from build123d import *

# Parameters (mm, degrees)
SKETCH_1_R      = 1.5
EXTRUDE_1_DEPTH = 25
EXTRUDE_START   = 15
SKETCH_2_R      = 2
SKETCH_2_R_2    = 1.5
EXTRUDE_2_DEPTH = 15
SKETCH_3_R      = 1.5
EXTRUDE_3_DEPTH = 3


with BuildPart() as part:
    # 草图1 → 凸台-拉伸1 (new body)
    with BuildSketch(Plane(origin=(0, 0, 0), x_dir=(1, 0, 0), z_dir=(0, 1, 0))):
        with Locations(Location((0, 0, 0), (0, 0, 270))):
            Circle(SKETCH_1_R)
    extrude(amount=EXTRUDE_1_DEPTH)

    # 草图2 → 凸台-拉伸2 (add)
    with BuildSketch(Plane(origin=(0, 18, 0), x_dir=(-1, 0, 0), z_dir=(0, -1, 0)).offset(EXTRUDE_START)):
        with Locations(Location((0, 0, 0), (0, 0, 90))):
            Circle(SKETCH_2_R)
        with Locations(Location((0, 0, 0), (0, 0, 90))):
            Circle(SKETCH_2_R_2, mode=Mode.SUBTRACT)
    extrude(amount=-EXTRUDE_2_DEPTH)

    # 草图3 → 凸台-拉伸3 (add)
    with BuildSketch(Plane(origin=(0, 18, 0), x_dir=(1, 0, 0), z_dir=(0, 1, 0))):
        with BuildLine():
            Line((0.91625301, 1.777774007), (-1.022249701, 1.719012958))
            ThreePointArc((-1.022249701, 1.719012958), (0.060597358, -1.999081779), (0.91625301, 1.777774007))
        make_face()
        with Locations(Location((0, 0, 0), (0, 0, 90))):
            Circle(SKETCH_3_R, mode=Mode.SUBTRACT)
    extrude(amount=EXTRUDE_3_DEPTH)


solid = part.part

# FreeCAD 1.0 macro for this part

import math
import FreeCAD as App
import Part
import Sketcher

doc = App.newDocument("Part")
body = doc.addObject("PartDesign::Body", "Body")

sketch1 = body.newObject("Sketcher::SketchObject", "Sketch")
sketch1.AttachmentSupport = (doc.getObject("XZ_Plane"), [""])
sketch1.MapMode = "FlatFace"
sketch1.addGeometry(Part.Circle(App.Vector(0, 0, 0), App.Vector(0, 0, 1), 1.5), False)
sketch1.addConstraint(Sketcher.Constraint("Coincident", 0, 3, -1, 1))
sketch1.addConstraint(Sketcher.Constraint("Diameter", 0, 3.0))
pad1 = body.newObject("PartDesign::Pad", "Pad")
pad1.Profile = sketch1
pad1.Length = 25
pad1.Reversed = True

sketch2 = body.newObject("Sketcher::SketchObject", "Sketch001")
sketch2.AttachmentSupport = (doc.getObject("XZ_Plane"), [""])
sketch2.MapMode = "FlatFace"
sketch2.AttachmentOffset = App.Placement(App.Vector(0, 0, -3), App.Rotation())
sketch2.addGeometry(Part.Circle(App.Vector(0, 0, 0), App.Vector(0, 0, 1), 2), False)
sketch2.addGeometry(Part.Circle(App.Vector(0, 0, 0), App.Vector(0, 0, 1), 1.5), False)
sketch2.addConstraint(Sketcher.Constraint("Coincident", 0, 3, -1, 1))
sketch2.addConstraint(Sketcher.Constraint("Coincident", 1, 3, -1, 1))
sketch2.addConstraint(Sketcher.Constraint("Diameter", 0, 4.0))
sketch2.addConstraint(Sketcher.Constraint("Diameter", 1, 3.0))
pad2 = body.newObject("PartDesign::Pad", "Pad001")
pad2.Profile = sketch2
pad2.Length = 15
pad2.Reversed = True

sketch3 = body.newObject("Sketcher::SketchObject", "Sketch002")
sketch3.AttachmentSupport = (doc.getObject("XZ_Plane"), [""])
sketch3.MapMode = "FlatFace"
sketch3.AttachmentOffset = App.Placement(App.Vector(0, 0, -18), App.Rotation())
sketch3.addGeometry(Part.LineSegment(App.Vector(0.9, -1.8, 0), App.Vector(-1, -1.7, 0)), False)
sketch3.addGeometry(Part.ArcOfCircle(Part.Circle(App.Vector(0, 0, 0), App.Vector(0, 0, 1), 2), math.radians(-63), math.radians(239)), False)
sketch3.addGeometry(Part.Circle(App.Vector(0, 0, 0), App.Vector(0, 0, 1), 1.5), False)
sketch3.addConstraint(Sketcher.Constraint("Coincident", 0, 1, 1, 1))
sketch3.addConstraint(Sketcher.Constraint("Coincident", 1, 2, 0, 2))
sketch3.addConstraint(Sketcher.Constraint("Coincident", 1, 3, -1, 1))
sketch3.addConstraint(Sketcher.Constraint("Coincident", 2, 3, -1, 1))
sketch3.addConstraint(Sketcher.Constraint("Diameter", 2, 3.0))
sketch3.addConstraint(Sketcher.Constraint("Radius", 1, 2.0))
sketch3.addConstraint(Sketcher.Constraint("DistanceX", 1, 2, -1, 1, 1.02225))
sketch3.addConstraint(Sketcher.Constraint("DistanceY", 0, 1, 1, 2, 0.058761))
pad3 = body.newObject("PartDesign::Pad", "Pad002")
pad3.Profile = sketch3
pad3.Length = 3
pad3.Reversed = True

doc.recompute()
